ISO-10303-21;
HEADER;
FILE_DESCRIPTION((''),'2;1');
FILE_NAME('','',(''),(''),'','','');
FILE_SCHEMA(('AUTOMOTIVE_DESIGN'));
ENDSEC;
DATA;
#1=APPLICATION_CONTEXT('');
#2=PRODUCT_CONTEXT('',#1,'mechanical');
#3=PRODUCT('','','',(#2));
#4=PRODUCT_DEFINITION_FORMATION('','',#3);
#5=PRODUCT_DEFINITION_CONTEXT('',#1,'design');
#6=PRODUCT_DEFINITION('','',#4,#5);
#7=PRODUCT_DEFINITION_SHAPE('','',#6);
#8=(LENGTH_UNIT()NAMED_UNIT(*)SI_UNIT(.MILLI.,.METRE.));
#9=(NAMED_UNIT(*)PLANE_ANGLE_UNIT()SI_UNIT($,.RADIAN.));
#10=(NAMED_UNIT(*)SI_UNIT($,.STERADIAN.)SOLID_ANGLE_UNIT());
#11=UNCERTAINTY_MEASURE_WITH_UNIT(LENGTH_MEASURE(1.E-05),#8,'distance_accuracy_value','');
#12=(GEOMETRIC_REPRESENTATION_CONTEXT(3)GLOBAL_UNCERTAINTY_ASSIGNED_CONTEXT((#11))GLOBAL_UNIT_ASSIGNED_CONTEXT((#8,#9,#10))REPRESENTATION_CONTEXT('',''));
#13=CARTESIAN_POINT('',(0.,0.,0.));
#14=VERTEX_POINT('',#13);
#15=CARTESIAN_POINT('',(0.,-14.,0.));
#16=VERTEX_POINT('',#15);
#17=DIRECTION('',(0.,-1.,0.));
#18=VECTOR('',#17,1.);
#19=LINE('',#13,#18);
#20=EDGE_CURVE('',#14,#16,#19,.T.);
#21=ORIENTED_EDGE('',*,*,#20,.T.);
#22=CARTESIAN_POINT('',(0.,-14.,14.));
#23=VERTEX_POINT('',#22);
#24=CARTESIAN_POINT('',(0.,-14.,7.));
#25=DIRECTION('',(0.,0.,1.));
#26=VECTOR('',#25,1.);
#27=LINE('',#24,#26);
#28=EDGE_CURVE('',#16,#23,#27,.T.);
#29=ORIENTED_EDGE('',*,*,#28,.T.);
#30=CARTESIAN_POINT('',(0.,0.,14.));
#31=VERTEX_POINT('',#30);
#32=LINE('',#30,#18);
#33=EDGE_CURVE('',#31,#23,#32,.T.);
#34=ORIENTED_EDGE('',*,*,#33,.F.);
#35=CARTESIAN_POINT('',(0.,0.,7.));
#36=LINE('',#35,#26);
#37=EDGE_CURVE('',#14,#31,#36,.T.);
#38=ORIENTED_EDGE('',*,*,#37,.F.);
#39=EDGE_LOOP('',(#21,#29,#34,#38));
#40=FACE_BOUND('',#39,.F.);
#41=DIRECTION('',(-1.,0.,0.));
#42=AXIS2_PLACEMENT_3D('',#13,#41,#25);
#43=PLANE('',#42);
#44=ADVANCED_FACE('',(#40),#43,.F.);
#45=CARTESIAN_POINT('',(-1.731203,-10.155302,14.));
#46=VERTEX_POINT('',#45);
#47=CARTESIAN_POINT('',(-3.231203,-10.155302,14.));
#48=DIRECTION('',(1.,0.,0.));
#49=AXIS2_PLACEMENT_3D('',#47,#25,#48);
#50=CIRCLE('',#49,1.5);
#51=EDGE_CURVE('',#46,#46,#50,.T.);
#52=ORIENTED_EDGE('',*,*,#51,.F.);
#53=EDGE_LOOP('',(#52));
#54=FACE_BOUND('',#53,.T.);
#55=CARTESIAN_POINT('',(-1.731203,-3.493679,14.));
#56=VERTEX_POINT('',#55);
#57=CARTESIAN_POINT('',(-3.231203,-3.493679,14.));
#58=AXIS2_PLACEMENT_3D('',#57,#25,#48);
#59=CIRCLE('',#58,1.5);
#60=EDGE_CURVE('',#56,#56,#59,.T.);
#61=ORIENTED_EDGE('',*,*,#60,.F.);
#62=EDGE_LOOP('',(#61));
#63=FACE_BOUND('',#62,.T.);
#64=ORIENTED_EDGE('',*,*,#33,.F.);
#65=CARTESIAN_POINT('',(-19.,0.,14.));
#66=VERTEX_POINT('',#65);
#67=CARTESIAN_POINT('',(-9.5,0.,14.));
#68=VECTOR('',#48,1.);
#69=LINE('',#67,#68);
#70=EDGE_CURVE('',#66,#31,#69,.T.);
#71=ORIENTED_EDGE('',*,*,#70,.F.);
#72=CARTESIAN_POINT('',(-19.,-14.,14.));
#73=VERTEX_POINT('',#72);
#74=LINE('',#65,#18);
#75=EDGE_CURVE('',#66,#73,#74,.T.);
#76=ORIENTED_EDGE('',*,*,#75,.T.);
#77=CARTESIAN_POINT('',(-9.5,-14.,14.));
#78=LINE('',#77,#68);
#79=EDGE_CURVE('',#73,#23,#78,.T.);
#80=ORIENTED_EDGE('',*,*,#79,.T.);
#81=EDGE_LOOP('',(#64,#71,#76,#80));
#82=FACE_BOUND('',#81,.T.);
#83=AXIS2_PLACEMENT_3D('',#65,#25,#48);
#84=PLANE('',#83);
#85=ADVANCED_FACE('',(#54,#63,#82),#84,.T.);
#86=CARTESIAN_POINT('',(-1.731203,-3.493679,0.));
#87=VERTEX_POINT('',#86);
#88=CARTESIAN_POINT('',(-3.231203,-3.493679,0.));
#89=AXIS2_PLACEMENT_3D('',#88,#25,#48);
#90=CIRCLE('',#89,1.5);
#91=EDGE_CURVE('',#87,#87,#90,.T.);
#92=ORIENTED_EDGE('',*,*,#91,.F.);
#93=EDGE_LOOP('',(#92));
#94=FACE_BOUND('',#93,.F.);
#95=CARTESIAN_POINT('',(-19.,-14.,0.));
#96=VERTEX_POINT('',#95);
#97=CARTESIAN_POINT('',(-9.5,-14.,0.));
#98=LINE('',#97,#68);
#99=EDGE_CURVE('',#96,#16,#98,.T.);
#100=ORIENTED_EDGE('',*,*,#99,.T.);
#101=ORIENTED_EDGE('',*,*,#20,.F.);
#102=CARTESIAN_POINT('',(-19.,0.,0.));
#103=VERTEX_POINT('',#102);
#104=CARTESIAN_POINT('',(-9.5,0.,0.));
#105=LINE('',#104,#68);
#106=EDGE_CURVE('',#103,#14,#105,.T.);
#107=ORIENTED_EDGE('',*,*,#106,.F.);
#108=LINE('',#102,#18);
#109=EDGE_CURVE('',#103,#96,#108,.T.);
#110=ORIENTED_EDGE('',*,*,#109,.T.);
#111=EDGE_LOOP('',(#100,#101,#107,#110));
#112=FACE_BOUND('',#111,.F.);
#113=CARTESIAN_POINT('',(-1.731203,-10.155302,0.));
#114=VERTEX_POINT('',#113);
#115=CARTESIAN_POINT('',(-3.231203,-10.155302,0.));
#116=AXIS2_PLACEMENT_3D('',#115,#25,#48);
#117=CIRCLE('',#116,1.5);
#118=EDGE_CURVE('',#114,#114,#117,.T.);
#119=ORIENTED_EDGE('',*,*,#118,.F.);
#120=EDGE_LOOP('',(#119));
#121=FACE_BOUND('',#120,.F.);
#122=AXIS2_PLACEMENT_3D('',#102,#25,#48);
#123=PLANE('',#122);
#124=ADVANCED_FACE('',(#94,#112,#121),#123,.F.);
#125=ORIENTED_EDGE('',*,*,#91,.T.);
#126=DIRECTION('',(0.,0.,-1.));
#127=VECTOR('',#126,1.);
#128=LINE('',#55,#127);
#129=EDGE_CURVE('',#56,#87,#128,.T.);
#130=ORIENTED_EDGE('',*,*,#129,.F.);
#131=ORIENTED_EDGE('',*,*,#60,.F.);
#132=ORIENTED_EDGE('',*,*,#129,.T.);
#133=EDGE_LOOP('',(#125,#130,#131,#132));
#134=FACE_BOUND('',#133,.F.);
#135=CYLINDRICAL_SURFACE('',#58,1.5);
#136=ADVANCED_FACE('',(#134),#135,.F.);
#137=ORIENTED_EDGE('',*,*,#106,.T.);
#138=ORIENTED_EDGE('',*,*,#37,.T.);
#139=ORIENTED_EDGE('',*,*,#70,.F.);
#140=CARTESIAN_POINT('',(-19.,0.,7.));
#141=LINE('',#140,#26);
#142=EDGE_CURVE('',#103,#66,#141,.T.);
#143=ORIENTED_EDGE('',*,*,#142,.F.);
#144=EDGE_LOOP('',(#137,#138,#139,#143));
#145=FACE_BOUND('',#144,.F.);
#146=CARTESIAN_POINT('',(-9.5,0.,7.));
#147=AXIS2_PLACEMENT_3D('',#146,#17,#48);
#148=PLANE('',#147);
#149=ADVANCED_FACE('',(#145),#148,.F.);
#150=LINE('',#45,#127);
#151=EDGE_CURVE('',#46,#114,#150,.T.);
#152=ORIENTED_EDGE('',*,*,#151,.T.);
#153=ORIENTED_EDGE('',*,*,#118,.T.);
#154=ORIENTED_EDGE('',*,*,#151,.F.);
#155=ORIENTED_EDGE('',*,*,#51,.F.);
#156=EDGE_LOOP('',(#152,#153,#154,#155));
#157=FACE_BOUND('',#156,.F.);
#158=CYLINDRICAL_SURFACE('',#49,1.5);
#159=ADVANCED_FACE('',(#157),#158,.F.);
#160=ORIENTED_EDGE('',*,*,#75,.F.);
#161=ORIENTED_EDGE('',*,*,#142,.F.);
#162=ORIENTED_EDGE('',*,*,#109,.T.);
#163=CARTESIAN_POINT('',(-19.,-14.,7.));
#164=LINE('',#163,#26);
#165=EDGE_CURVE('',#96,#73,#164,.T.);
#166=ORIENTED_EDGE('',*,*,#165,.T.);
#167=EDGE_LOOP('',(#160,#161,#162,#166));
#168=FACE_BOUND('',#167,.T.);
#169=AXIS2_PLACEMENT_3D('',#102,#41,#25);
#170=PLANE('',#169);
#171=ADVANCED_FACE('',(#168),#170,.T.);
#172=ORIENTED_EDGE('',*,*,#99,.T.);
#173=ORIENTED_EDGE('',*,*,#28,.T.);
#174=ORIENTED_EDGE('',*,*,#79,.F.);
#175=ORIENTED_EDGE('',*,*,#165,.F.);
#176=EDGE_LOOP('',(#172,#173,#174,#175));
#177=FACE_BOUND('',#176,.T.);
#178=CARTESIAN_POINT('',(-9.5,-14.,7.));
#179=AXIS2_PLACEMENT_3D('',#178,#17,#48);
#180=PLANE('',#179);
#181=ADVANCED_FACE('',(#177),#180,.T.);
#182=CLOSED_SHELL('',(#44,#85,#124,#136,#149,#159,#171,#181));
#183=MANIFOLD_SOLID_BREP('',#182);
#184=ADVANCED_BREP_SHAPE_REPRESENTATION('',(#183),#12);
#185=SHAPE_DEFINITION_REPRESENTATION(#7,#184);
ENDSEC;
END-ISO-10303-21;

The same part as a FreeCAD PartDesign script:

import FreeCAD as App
import Part
import Sketcher
Q = App.Units.Quantity


def add_polygon(sketch, points):
    """Adds a closed chain of lines whose ends are joined by coincident constraints."""
    first, n = sketch.GeometryCount, len(points)
    for a, b in zip(points, points[1:] + points[:1]):
        sketch.addGeometry(Part.LineSegment(App.Vector(*a, 0), App.Vector(*b, 0)), False)
    for i in range(n):
        sketch.addConstraint(Sketcher.Constraint("Coincident", first + i, 2, first + (i + 1) % n, 1))

doc = App.newDocument("Part")
params = doc.addObject("Spreadsheet::Sheet", "Params")
for row, (alias, value) in enumerate([
    ("sketch1_width", "19 mm"),
    ("sketch1_height", "14 mm"),
    ("pad1_length", "14 mm"),
    ("sketch2_diameter", "3 mm"),
    ("pocket1_length", "14 mm"),
], start=1):
    params.set(f"A{row}", alias)
    params.set(f"B{row}", "=" + value)
    params.setAlias(f"B{row}", alias)

body = doc.addObject("PartDesign::Body", "Body")

# Sketch on XZ plane
sketch1 = body.newObject("Sketcher::SketchObject", "Sketch")
sketch1.AttachmentSupport = (doc.getObject("XZ_Plane"), [""])
sketch1.MapMode = "FlatFace"
add_polygon(sketch1, [(-19, 14), (-19, 0), (0, 0), (0, 14)])  # lines 0-3
sketch1.addConstraint([
    Sketcher.Constraint("Vertical", 0),
    Sketcher.Constraint("Horizontal", 1),
    Sketcher.Constraint("Vertical", 2),
    Sketcher.Constraint("Horizontal", 3),
    Sketcher.Constraint("Coincident", 1, 2, -1, 1),
    Sketcher.Constraint("DistanceX", 1, 1, 1, 2, Q("19 mm")),
    Sketcher.Constraint("DistanceY", 0, 2, 0, 1, Q("14 mm")),
])
sketch1.setExpression("Constraints[9]", "Params.sketch1_width")
sketch1.setExpression("Constraints[10]", "Params.sketch1_height")
pad1 = body.newObject("PartDesign::Pad", "Pad")
pad1.Profile = sketch1
pad1.setExpression("Length", "Params.pad1_length")

# Sketch on XY plane
sketch2 = body.newObject("Sketcher::SketchObject", "Sketch001")
sketch2.AttachmentSupport = (doc.getObject("XY_Plane"), [""])
sketch2.MapMode = "FlatFace"
sketch2.AttachmentOffset = App.Placement(App.Vector(0, 0, 14), App.Rotation())
sketch2.addGeometry([
    Part.Circle(App.Vector(-3.2, -3.5, 0), App.Vector(0, 0, 1), 1.5),
    Part.Circle(App.Vector(-3.2, -10.2, 0), App.Vector(0, 0, 1), 1.5),
], False)
sketch2.addConstraint([
    Sketcher.Constraint("Equal", 0, 1),
    Sketcher.Constraint("Vertical", 0, 3, 1, 3),
    Sketcher.Constraint("Diameter", 0, Q("3 mm")),
    Sketcher.Constraint("DistanceY", 0, 3, -1, 1, Q("3.493679 mm")),
    Sketcher.Constraint("DistanceX", 0, 3, -1, 1, Q("3.231203 mm")),
    Sketcher.Constraint("DistanceY", 1, 3, -1, 1, Q("10.155302 mm")),
])
sketch2.setExpression("Constraints[2]", "Params.sketch2_diameter")
pocket1 = body.newObject("PartDesign::Pocket", "Pocket")
pocket1.Profile = sketch2
pocket1.setExpression("Length", "Params.pocket1_length")

doc.recompute()
